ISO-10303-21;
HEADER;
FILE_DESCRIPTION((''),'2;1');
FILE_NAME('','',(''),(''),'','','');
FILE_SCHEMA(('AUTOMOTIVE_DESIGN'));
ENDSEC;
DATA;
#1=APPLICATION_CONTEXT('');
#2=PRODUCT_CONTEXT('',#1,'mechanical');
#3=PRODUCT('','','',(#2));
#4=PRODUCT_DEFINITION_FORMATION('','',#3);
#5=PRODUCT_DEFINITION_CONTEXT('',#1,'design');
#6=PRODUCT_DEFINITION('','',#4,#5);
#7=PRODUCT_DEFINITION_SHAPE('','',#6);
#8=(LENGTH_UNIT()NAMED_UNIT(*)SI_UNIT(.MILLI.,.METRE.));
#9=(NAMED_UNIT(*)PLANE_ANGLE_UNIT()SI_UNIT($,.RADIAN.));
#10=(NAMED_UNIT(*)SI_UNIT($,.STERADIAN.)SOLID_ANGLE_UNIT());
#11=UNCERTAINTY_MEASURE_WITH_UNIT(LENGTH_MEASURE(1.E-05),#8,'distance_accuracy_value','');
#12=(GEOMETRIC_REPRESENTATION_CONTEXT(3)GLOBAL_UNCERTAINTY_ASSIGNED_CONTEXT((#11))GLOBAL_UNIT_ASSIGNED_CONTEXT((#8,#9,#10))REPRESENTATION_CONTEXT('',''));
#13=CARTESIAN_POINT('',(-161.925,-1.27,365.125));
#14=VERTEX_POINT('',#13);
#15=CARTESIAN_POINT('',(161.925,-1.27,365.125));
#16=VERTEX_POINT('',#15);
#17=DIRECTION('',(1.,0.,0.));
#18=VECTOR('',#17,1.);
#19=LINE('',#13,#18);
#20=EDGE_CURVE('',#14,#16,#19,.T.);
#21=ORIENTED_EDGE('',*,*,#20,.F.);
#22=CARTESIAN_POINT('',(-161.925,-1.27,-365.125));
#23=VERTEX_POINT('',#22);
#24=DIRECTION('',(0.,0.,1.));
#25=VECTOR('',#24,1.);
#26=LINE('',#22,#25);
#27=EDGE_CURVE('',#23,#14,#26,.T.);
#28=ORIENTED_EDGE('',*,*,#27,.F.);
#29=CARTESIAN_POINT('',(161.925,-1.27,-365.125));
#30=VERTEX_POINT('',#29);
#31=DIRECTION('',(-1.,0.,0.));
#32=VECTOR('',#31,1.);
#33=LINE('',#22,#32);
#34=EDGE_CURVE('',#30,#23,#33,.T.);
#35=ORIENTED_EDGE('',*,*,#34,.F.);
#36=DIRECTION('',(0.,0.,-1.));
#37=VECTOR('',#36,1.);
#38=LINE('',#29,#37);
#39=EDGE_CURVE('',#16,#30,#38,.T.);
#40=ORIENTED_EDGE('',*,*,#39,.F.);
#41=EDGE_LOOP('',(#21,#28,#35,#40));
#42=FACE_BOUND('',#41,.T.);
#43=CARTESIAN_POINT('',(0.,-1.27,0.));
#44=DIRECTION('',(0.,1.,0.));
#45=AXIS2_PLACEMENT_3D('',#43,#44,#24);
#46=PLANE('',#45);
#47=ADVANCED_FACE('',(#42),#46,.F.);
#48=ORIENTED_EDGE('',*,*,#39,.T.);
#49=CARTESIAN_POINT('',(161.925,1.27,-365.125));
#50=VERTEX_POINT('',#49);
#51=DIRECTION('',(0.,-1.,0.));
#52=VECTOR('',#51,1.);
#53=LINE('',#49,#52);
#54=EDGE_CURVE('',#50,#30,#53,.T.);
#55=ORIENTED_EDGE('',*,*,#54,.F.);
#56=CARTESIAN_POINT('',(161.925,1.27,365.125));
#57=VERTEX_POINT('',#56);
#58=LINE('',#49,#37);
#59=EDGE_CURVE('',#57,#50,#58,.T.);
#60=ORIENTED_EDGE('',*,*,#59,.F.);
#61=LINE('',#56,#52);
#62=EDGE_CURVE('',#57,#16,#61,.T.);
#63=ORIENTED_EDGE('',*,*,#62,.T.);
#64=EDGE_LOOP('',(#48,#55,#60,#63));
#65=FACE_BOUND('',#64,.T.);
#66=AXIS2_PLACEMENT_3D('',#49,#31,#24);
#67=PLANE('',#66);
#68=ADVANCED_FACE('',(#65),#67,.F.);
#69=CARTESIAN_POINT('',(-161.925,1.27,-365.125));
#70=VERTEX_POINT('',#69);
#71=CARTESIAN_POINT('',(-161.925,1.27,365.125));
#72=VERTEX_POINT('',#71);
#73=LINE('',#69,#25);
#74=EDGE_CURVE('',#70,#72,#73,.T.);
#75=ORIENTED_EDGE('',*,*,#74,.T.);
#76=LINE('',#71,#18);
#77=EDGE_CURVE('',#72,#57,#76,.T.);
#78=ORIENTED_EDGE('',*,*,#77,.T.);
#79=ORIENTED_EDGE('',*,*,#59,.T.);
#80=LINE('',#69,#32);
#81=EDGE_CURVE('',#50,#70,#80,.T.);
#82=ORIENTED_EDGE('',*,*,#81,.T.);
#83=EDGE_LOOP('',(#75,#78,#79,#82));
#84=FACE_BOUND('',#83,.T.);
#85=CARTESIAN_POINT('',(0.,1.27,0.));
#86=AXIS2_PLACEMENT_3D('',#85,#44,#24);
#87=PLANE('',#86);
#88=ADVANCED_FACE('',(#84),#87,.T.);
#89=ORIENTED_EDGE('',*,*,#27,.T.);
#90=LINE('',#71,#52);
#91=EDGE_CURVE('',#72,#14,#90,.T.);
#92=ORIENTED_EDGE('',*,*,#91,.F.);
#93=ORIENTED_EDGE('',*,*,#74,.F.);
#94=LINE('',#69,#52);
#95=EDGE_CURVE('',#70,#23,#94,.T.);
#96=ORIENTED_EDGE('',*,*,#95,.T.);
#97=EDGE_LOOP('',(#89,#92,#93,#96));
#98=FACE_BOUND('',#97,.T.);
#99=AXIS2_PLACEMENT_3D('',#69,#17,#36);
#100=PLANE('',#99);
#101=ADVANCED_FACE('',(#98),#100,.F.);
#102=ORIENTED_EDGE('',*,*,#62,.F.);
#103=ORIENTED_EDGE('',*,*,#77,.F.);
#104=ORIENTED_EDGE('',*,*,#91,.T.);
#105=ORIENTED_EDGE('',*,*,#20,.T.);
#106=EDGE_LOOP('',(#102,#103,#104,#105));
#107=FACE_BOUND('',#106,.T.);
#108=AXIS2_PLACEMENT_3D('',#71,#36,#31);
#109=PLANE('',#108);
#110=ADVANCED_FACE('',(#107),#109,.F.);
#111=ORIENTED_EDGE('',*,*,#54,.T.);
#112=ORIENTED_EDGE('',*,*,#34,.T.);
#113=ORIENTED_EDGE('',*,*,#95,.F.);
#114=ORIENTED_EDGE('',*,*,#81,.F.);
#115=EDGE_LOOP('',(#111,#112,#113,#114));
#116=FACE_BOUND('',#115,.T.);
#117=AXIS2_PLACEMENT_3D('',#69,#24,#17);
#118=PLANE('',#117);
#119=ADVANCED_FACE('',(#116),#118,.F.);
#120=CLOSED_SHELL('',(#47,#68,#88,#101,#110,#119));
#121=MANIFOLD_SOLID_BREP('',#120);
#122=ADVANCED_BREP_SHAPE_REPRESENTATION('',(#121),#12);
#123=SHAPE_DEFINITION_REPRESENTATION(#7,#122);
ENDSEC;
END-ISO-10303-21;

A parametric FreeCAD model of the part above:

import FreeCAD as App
import Part
import Sketcher
Q = App.Units.Quantity

doc = App.newDocument("Part")
body = doc.addObject("PartDesign::Body", "Body")

# Sketch on XZ plane
sketch1 = doc.addObject("Sketcher::SketchObject", "Sketch")
body.addObject(sketch1)
sketch1.AttachmentSupport = (doc.XZ_Plane, [""])
sketch1.MapMode = "FlatFace"
sketch1.addGeometry(Part.LineSegment(App.Vector(-162, -365, 0), App.Vector(-162, 365, 0)), False)
sketch1.addGeometry(Part.LineSegment(App.Vector(-162, 365, 0), App.Vector(162, 365, 0)), False)
sketch1.addGeometry(Part.LineSegment(App.Vector(162, 365, 0), App.Vector(162, -365, 0)), False)
sketch1.addGeometry(Part.LineSegment(App.Vector(162, -365, 0), App.Vector(-162, -365, 0)), False)
sketch1.addConstraint(Sketcher.Constraint("Coincident", 0, 2, 1, 1))
sketch1.addConstraint(Sketcher.Constraint("Coincident", 1, 2, 2, 1))
sketch1.addConstraint(Sketcher.Constraint("Coincident", 2, 2, 3, 1))
sketch1.addConstraint(Sketcher.Constraint("Coincident", 3, 2, 0, 1))
sketch1.addConstraint(Sketcher.Constraint("Vertical", 0))
sketch1.addConstraint(Sketcher.Constraint("Horizontal", 1))
sketch1.addConstraint(Sketcher.Constraint("Vertical", 2))
sketch1.addConstraint(Sketcher.Constraint("Horizontal", 3))
sketch1.addConstraint(Sketcher.Constraint("Symmetric", 0, 2, 2, 2, -1, 1))
sketch1.addConstraint(Sketcher.Constraint("DistanceX", 1, 1, 1, 2, Q("12.75 in")))
sketch1.addConstraint(Sketcher.Constraint("DistanceY", 0, 1, 0, 2, Q("28.75 in")))
pad1 = doc.addObject("PartDesign::Pad", "Pad")
body.addObject(pad1)
pad1.Profile = sketch1
pad1.Length = Q("0.1 in")
pad1.Midplane = True

doc.recompute()
